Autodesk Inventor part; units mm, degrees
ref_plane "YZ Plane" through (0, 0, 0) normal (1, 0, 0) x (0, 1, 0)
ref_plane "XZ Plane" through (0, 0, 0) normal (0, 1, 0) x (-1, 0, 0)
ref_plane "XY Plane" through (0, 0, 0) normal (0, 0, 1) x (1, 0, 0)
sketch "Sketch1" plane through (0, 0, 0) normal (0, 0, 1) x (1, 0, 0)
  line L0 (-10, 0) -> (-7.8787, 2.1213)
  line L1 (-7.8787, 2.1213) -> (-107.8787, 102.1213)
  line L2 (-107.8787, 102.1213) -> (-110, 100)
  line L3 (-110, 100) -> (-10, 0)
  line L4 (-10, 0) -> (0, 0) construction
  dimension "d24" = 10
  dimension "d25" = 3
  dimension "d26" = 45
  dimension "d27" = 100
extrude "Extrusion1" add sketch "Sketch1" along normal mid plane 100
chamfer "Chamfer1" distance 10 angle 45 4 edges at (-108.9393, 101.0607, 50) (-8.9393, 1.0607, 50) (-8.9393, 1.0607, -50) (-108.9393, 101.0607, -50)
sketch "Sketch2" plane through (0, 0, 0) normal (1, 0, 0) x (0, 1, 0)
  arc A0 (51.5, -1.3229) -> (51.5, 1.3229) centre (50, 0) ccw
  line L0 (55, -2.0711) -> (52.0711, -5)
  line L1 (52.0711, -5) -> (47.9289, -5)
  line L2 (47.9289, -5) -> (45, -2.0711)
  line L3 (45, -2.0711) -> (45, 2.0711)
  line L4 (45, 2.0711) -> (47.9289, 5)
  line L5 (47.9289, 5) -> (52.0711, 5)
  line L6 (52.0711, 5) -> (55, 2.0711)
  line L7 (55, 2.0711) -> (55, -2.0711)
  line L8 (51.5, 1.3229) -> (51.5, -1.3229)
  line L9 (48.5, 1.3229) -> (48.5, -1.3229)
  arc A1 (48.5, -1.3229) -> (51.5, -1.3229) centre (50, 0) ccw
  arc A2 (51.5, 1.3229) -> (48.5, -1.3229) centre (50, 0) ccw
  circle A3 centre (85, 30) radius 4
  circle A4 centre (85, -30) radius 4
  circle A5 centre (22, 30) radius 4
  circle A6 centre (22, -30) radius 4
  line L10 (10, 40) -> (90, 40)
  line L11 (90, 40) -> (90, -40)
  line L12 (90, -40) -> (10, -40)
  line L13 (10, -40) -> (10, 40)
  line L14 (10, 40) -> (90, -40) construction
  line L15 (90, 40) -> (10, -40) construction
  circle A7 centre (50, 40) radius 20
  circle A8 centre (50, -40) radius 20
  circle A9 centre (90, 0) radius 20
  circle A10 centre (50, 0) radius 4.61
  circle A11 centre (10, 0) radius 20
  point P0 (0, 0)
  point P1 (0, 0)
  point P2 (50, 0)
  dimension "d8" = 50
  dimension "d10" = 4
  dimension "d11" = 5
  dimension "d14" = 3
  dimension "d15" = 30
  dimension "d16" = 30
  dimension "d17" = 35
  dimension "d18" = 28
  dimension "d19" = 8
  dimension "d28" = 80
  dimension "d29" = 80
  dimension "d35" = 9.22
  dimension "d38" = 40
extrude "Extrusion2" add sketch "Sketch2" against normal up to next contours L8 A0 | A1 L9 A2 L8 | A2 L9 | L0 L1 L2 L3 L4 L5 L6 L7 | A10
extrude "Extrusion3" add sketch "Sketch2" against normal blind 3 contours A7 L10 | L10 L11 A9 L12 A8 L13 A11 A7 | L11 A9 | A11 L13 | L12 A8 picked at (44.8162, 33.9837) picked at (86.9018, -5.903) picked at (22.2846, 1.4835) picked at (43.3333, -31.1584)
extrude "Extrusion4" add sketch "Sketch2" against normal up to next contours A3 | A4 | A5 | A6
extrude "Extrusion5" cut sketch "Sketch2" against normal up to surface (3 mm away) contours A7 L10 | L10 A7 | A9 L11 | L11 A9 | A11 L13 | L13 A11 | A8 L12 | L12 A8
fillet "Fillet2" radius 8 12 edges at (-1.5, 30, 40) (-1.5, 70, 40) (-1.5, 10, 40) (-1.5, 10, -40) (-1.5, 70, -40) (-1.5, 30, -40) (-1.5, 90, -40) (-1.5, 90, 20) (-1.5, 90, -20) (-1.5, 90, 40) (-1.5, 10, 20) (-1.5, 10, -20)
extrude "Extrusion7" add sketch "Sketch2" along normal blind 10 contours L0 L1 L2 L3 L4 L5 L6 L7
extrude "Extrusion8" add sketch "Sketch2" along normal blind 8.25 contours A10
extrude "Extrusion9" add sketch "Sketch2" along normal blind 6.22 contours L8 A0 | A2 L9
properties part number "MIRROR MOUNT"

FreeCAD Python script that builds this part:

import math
import FreeCAD as App
import Part
import Sketcher

V = App.Vector
Q = App.Units.Quantity


def edges_at(feature, points):
    """Names of the edges that pass closest to the given points."""
    edges = feature.Shape.Edges
    near = lambda p: min(range(len(edges)), key=lambda i: edges[i].distToShape(Part.Vertex(*p))[0])
    return sorted({f"Edge{near(p) + 1}" for p in points})

doc = App.newDocument("Part")
params = doc.addObject("Spreadsheet::Sheet", "Params")
for row, (alias, value) in enumerate([
    ("sketch1_length", "3 mm"),
    ("pad1_length", "100 mm"),
    ("chamfer_size", "10 mm"),
    ("sketch3_diameter", "8 mm"),
    ("sketch3_width", "80 mm"),
    ("pad3_length", "3 mm"),
    ("sketch4_diameter", "8 mm"),
    ("sketch5_diameter", "40 mm"),
    ("pocket1_length", "3 mm"),
    ("fillet_radius", "8 mm"),
    ("sketch6_diameter", "9.22 mm"),
    ("pad5_length", "10 mm"),
    ("sketch7_diameter", "4 mm"),
    ("sketch7_diameter2", "9.22 mm"),
    ("pad6_length", "8.25 mm"),
    ("sketch8_radius", "2 mm"),
    ("pad7_length", "6.22 mm"),
], start=1):
    params.set(f"A{row}", alias)
    params.set(f"B{row}", "=" + value)
    params.setAlias(f"B{row}", alias)

body = doc.addObject("PartDesign::Body", "Body")

sketch1 = body.newObject("Sketcher::SketchObject", "Sketch")
sketch1.AttachmentSupport = (doc.getObject("XY_Plane"), [""])
sketch1.MapMode = "FlatFace"
sketch1.addGeometry([
    Part.LineSegment(V(-110, 100, 0), V(-10, 0, 0)),
    Part.LineSegment(V(-10, 0, 0), V(-7.8787, 2.1213, 0)),
    Part.LineSegment(V(-7.8787, 2.1213, 0), V(-107.8787, 102.1213, 0)),
    Part.LineSegment(V(-107.8787, 102.1213, 0), V(-110, 100, 0)),
], False)
sketch1.addConstraint([
    Sketcher.Constraint("Coincident", 0, 2, 1, 1),
    Sketcher.Constraint("Coincident", 1, 2, 2, 1),
    Sketcher.Constraint("Coincident", 2, 2, 3, 1),
    Sketcher.Constraint("Coincident", 3, 2, 0, 1),
    Sketcher.Constraint("PointOnObject", 0, 2, -1),
    Sketcher.Constraint("Perpendicular", 0, 1),
    Sketcher.Constraint("Perpendicular", 1, 2),
    Sketcher.Constraint("Perpendicular", 2, 3),
    Sketcher.Constraint("Angle", 0, Q("-45 deg")),
    Sketcher.Constraint("Distance", 1, 3.0),
    Sketcher.Constraint("DistanceX", 0, 2, -1, 1, 10.0),
    Sketcher.Constraint("DistanceY", -1, 1, 3, 2, 100.0),
])
sketch1.setExpression("Constraints[9]", "Params.sketch1_length")
pad1 = body.newObject("PartDesign::Pad", "Pad")
pad1.Profile = sketch1
pad1.setExpression("Length", "Params.pad1_length")
pad1.Midplane = True
doc.recompute()

chamfer = body.newObject("PartDesign::Chamfer", "Chamfer")
chamfer.Base = (pad1, edges_at(pad1, [
    (-108.939, 101.061, 50),
    (-8.939, 1.061, 50),
    (-8.939, 1.061, -50),
    (-108.939, 101.061, -50),
]))
chamfer.setExpression("Size", "Params.chamfer_size")

sketch2 = body.newObject("Sketcher::SketchObject", "Sketch001")
sketch2.AttachmentSupport = (doc.getObject("YZ_Plane"), [""])
sketch2.MapMode = "FlatFace"
sketch2.addGeometry([
    Part.LineSegment(V(52.0711, -5, 0), V(55, -2.0711, 0)),
    Part.LineSegment(V(55, -2.0711, 0), V(55, 2.0711, 0)),
    Part.LineSegment(V(55, 2.0711, 0), V(52.0711, 5, 0)),
    Part.LineSegment(V(52.0711, 5, 0), V(47.9289, 5, 0)),
    Part.LineSegment(V(47.9289, 5, 0), V(45, 2.0711, 0)),
    Part.LineSegment(V(45, 2.0711, 0), V(45, -2.0711, 0)),
    Part.LineSegment(V(45, -2.0711, 0), V(47.9289, -5, 0)),
    Part.LineSegment(V(47.9289, -5, 0), V(52.0711, -5, 0)),
], False)
sketch2.addConstraint([
    Sketcher.Constraint("Coincident", 0, 2, 1, 1),
    Sketcher.Constraint("Coincident", 1, 2, 2, 1),
    Sketcher.Constraint("Coincident", 2, 2, 3, 1),
    Sketcher.Constraint("Coincident", 3, 2, 4, 1),
    Sketcher.Constraint("Coincident", 4, 2, 5, 1),
    Sketcher.Constraint("Coincident", 5, 2, 6, 1),
    Sketcher.Constraint("Coincident", 6, 2, 7, 1),
    Sketcher.Constraint("Coincident", 7, 2, 0, 1),
    Sketcher.Constraint("Vertical", 1),
    Sketcher.Constraint("Horizontal", 3),
    Sketcher.Constraint("Vertical", 5),
    Sketcher.Constraint("Horizontal", 7),
    Sketcher.Constraint("Symmetric", 3, 2, 6, 2, -1),
    Sketcher.Constraint("Perpendicular", 0, 2),
    Sketcher.Constraint("Perpendicular", 2, 4),
    Sketcher.Constraint("Perpendicular", 4, 6),
    Sketcher.Constraint("Horizontal", 1, 2, 4, 2),
    Sketcher.Constraint("Horizontal", 0, 2, 5, 2),
    Sketcher.Constraint("Vertical", 2, 2, 7, 2),
    Sketcher.Constraint("Equal", 7, 1),
    Sketcher.Constraint("DistanceY", -1, 1, 2, 2, 5.0),
    Sketcher.Constraint("DistanceX", -1, 1, 0, 2, 55.0),
    Sketcher.Constraint("Distance", 0, 4.142),
])
pad2 = body.newObject("PartDesign::Pad", "Pad001")
pad2.Profile = sketch2
pad2.Type = "UpToFirst"
pad2.Reversed = True

sketch3 = body.newObject("Sketcher::SketchObject", "Sketch002")
sketch3.AttachmentSupport = (doc.getObject("YZ_Plane"), [""])
sketch3.MapMode = "FlatFace"
sketch3.addGeometry([
    Part.LineSegment(V(10, 40, 0), V(10, -40, 0)),
    Part.LineSegment(V(10, -40, 0), V(90, -40, 0)),
    Part.LineSegment(V(90, -40, 0), V(90, 40, 0)),
    Part.LineSegment(V(90, 40, 0), V(10, 40, 0)),
    Part.Circle(V(85, 30, 0), V(0, 0, 1), 4),
    Part.Circle(V(22, -30, 0), V(0, 0, 1), 4),
    Part.Circle(V(85, -30, 0), V(0, 0, 1), 4),
    Part.Circle(V(22, 30, 0), V(0, 0, 1), 4),
    Part.LineSegment(V(55, 2.0711, 0), V(55, -2.0711, 0)),
    Part.LineSegment(V(55, -2.0711, 0), V(52.0711, -5, 0)),
    Part.LineSegment(V(52.0711, -5, 0), V(47.9289, -5, 0)),
    Part.LineSegment(V(47.9289, -5, 0), V(45, -2.0711, 0)),
    Part.LineSegment(V(45, -2.0711, 0), V(45, 2.0711, 0)),
    Part.LineSegment(V(45, 2.0711, 0), V(47.9289, 5, 0)),
    Part.LineSegment(V(47.9289, 5, 0), V(52.0711, 5, 0)),
    Part.LineSegment(V(52.0711, 5, 0), V(55, 2.0711, 0)),
], False)
sketch3.addConstraint([
    Sketcher.Constraint("Coincident", 0, 2, 1, 1),
    Sketcher.Constraint("Coincident", 1, 2, 2, 1),
    Sketcher.Constraint("Coincident", 2, 2, 3, 1),
    Sketcher.Constraint("Coincident", 3, 2, 0, 1),
    Sketcher.Constraint("Coincident", 8, 2, 9, 1),
    Sketcher.Constraint("Coincident", 9, 2, 10, 1),
    Sketcher.Constraint("Coincident", 10, 2, 11, 1),
    Sketcher.Constraint("Coincident", 11, 2, 12, 1),
    Sketcher.Constraint("Coincident", 12, 2, 13, 1),
    Sketcher.Constraint("Coincident", 13, 2, 14, 1),
    Sketcher.Constraint("Coincident", 14, 2, 15, 1),
    Sketcher.Constraint("Coincident", 15, 2, 8, 1),
    Sketcher.Constraint("Vertical", 0),
    Sketcher.Constraint("Horizontal", 1),
    Sketcher.Constraint("Vertical", 2),
    Sketcher.Constraint("Horizontal", 3),
    Sketcher.Constraint("Vertical", 8),
    Sketcher.Constraint("Horizontal", 10),
    Sketcher.Constraint("Vertical", 12),
    Sketcher.Constraint("Horizontal", 14),
    Sketcher.Constraint("Equal", 4, 5),
    Sketcher.Constraint("Equal", 5, 6),
    Sketcher.Constraint("Equal", 6, 7),
    Sketcher.Constraint("Symmetric", 4, 3, 6, 3, -1),
    Sketcher.Constraint("Symmetric", 5, 3, 7, 3, -1),
    Sketcher.Constraint("Symmetric", 10, 2, 13, 2, -1),
    Sketcher.Constraint("Perpendicular", 9, 11),
    Sketcher.Constraint("Perpendicular", 11, 13),
    Sketcher.Constraint("Perpendicular", 13, 15),
    Sketcher.Constraint("Horizontal", 5, 3, 6, 3),
    Sketcher.Constraint("Horizontal", 8, 2, 11, 2),
    Sketcher.Constraint("Horizontal", 12, 2, 15, 2),
    Sketcher.Constraint("Vertical", 9, 2, 14, 2),
    Sketcher.Constraint("Equal", 3, 0),
    Sketcher.Constraint("Equal", 14, 8),
    Sketcher.Constraint("Diameter", 4, 8.0),
    Sketcher.Constraint("DistanceX", 1, 1, 1, 2, 80.0),
    Sketcher.Constraint("DistanceY", -1, 1, 4, 3, 30.0),
    Sketcher.Constraint("DistanceY", 0, 2, -1, 1, 40.0),
    Sketcher.Constraint("DistanceY", 9, 2, -1, 1, 5.0),
    Sketcher.Constraint("DistanceX", 6, 3, 1, 2, 5.0),
    Sketcher.Constraint("DistanceX", 8, 2, 6, 3, 30.0),
    Sketcher.Constraint("DistanceX", -1, 1, 4, 3, 85.0),
    Sketcher.Constraint("DistanceX", -1, 1, 5, 3, 22.0),
    Sketcher.Constraint("Distance", 9, 4.142),
])
sketch3.setExpression("Constraints[35]", "Params.sketch3_diameter")
sketch3.setExpression("Constraints[36]", "Params.sketch3_width")
pad3 = body.newObject("PartDesign::Pad", "Pad002")
pad3.Profile = sketch3
pad3.setExpression("Length", "Params.pad3_length")
pad3.Reversed = True

sketch4 = body.newObject("Sketcher::SketchObject", "Sketch003")
sketch4.AttachmentSupport = (doc.getObject("YZ_Plane"), [""])
sketch4.MapMode = "FlatFace"
sketch4.addGeometry([
    Part.Circle(V(85, 30, 0), V(0, 0, 1), 4),
    Part.Circle(V(85, -30, 0), V(0, 0, 1), 4),
    Part.Circle(V(22, 30, 0), V(0, 0, 1), 4),
    Part.Circle(V(22, -30, 0), V(0, 0, 1), 4),
], False)
sketch4.addConstraint([
    Sketcher.Constraint("Equal", 0, 1),
    Sketcher.Constraint("Equal", 1, 2),
    Sketcher.Constraint("Equal", 2, 3),
    Sketcher.Constraint("Symmetric", 0, 3, 1, 3, -1),
    Sketcher.Constraint("Symmetric", 2, 3, 3, 3, -1),
    Sketcher.Constraint("Horizontal", 0, 3, 2, 3),
    Sketcher.Constraint("Diameter", 0, 8.0),
    Sketcher.Constraint("DistanceY", -1, 1, 0, 3, 30.0),
    Sketcher.Constraint("DistanceX", -1, 1, 0, 3, 85.0),
    Sketcher.Constraint("DistanceX", -1, 1, 2, 3, 22.0),
])
sketch4.setExpression("Constraints[6]", "Params.sketch4_diameter")
pad4 = body.newObject("PartDesign::Pad", "Pad003")
pad4.Profile = sketch4
pad4.Type = "UpToFirst"
pad4.Reversed = True

sketch5 = body.newObject("Sketcher::SketchObject", "Sketch004")
sketch5.AttachmentSupport = (doc.getObject("YZ_Plane"), [""])
sketch5.MapMode = "FlatFace"
sketch5.addGeometry([
    Part.Circle(V(50, 40, 0), V(0, 0, 1), 20),
    Part.Circle(V(90, 0, 0), V(0, 0, 1), 20),
    Part.Circle(V(10, 0, 0), V(0, 0, 1), 20),
    Part.Circle(V(50, -40, 0), V(0, 0, 1), 20),
], False)
sketch5.addConstraint([
    Sketcher.Constraint("Equal", 0, 1),
    Sketcher.Constraint("Equal", 1, 2),
    Sketcher.Constraint("Equal", 2, 3),
    Sketcher.Constraint("Symmetric", 0, 3, 3, 3, -1),
    Sketcher.Constraint("PointOnObject", 1, 3, -1),
    Sketcher.Constraint("PointOnObject", 2, 3, -1),
    Sketcher.Constraint("Diameter", 0, 40.0),
    Sketcher.Constraint("DistanceX", -1, 1, 0, 3, 50.0),
    Sketcher.Constraint("DistanceY", -1, 1, 0, 3, 40.0),
    Sketcher.Constraint("DistanceX", 0, 3, 1, 3, 40.0),
    Sketcher.Constraint("DistanceX", 2, 3, 0, 3, 40.0),
])
sketch5.setExpression("Constraints[6]", "Params.sketch5_diameter")
pocket1 = body.newObject("PartDesign::Pocket", "Pocket")
pocket1.Profile = sketch5
pocket1.setExpression("Length", "Params.pocket1_length")
doc.recompute()

fillet = body.newObject("PartDesign::Fillet", "Fillet")
fillet.Base = (pocket1, edges_at(pocket1, [
    (-1.5, 30, 40),
    (-1.5, 70, 40),
    (-1.5, 10, 40),
    (-1.5, 10, -40),
    (-1.5, 70, -40),
    (-1.5, 30, -40),
    (-1.5, 90, -40),
    (-1.5, 90, 20),
    (-1.5, 90, -20),
    (-1.5, 90, 40),
    (-1.5, 10, 20),
    (-1.5, 10, -20),
]))
fillet.setExpression("Radius", "Params.fillet_radius")

sketch6 = body.newObject("Sketcher::SketchObject", "Sketch005")
sketch6.AttachmentSupport = (doc.getObject("YZ_Plane"), [""])
sketch6.MapMode = "FlatFace"
sketch6.addGeometry([
    Part.LineSegment(V(52.0711, -5, 0), V(55, -2.0711, 0)),
    Part.LineSegment(V(55, -2.0711, 0), V(55, 2.0711, 0)),
    Part.LineSegment(V(55, 2.0711, 0), V(52.0711, 5, 0)),
    Part.LineSegment(V(52.0711, 5, 0), V(47.9289, 5, 0)),
    Part.LineSegment(V(47.9289, 5, 0), V(45, 2.0711, 0)),
    Part.LineSegment(V(45, 2.0711, 0), V(45, -2.0711, 0)),
    Part.LineSegment(V(45, -2.0711, 0), V(47.9289, -5, 0)),
    Part.LineSegment(V(47.9289, -5, 0), V(52.0711, -5, 0)),
    Part.Circle(V(50, 0, 0), V(0, 0, 1), 4.61),
], False)
sketch6.addConstraint([
    Sketcher.Constraint("Coincident", 0, 2, 1, 1),
    Sketcher.Constraint("Coincident", 1, 2, 2, 1),
    Sketcher.Constraint("Coincident", 2, 2, 3, 1),
    Sketcher.Constraint("Coincident", 3, 2, 4, 1),
    Sketcher.Constraint("Coincident", 4, 2, 5, 1),
    Sketcher.Constraint("Coincident", 5, 2, 6, 1),
    Sketcher.Constraint("Coincident", 6, 2, 7, 1),
    Sketcher.Constraint("Coincident", 7, 2, 0, 1),
    Sketcher.Constraint("Vertical", 1),
    Sketcher.Constraint("Horizontal", 3),
    Sketcher.Constraint("Vertical", 5),
    Sketcher.Constraint("Horizontal", 7),
    Sketcher.Constraint("Symmetric", 3, 2, 6, 2, -1),
    Sketcher.Constraint("PointOnObject", 8, 3, -1),
    Sketcher.Constraint("Perpendicular", 0, 2),
    Sketcher.Constraint("Perpendicular", 2, 4),
    Sketcher.Constraint("Perpendicular", 4, 6),
    Sketcher.Constraint("Horizontal", 1, 2, 4, 2),
    Sketcher.Constraint("Horizontal", 0, 2, 5, 2),
    Sketcher.Constraint("Vertical", 2, 2, 7, 2),
    Sketcher.Constraint("Equal", 7, 1),
    Sketcher.Constraint("Diameter", 8, 9.22),
    Sketcher.Constraint("DistanceX", -1, 1, 8, 3, 50.0),
    Sketcher.Constraint("DistanceY", -1, 1, 2, 2, 5.0),
    Sketcher.Constraint("DistanceX", 8, 3, 0, 2, 5.0),
    Sketcher.Constraint("Distance", 0, 4.142),
])
sketch6.setExpression("Constraints[21]", "Params.sketch6_diameter")
pad5 = body.newObject("PartDesign::Pad", "Pad004")
pad5.Profile = sketch6
pad5.setExpression("Length", "Params.pad5_length")

sketch7 = body.newObject("Sketcher::SketchObject", "Sketch006")
sketch7.AttachmentSupport = (doc.getObject("YZ_Plane"), [""])
sketch7.MapMode = "FlatFace"
sketch7.addGeometry([
    Part.Circle(V(50, 0, 0), V(0, 0, 1), 4.61),
    Part.Circle(V(50, 0, 0), V(0, 0, 1), 2.000016),
], False)
sketch7.addConstraint([
    Sketcher.Constraint("Coincident", 1, 3, 0, 3),
    Sketcher.Constraint("PointOnObject", 0, 3, -1),
    Sketcher.Constraint("Diameter", 1, 4.0),
    Sketcher.Constraint("Diameter", 0, 9.22),
    Sketcher.Constraint("DistanceX", -1, 1, 0, 3, 50.0),
])
sketch7.setExpression("Constraints[2]", "Params.sketch7_diameter")
sketch7.setExpression("Constraints[3]", "Params.sketch7_diameter2")
pad6 = body.newObject("PartDesign::Pad", "Pad005")
pad6.Profile = sketch7
pad6.setExpression("Length", "Params.pad6_length")

sketch8 = body.newObject("Sketcher::SketchObject", "Sketch007")
sketch8.AttachmentSupport = (doc.getObject("YZ_Plane"), [""])
sketch8.MapMode = "FlatFace"
sketch8.addGeometry([
    Part.LineSegment(V(51.5, 1.3229, 0), V(51.5, -1.3229, 0)),
    Part.ArcOfCircle(Part.Circle(V(50, 0, 0), V(0, 0, 1), 2.000016), math.radians(-41.410145), math.radians(41.410145)),
    Part.ArcOfCircle(Part.Circle(V(50, 0, 0), V(0, 0, 1), 2.000016), math.radians(138.589855), math.radians(221.410145)),
    Part.LineSegment(V(48.5, -1.3229, 0), V(48.5, 1.3229, 0)),
], False)
sketch8.addConstraint([
    Sketcher.Constraint("Coincident", 0, 1, 1, 2),
    Sketcher.Constraint("Coincident", 1, 1, 0, 2),
    Sketcher.Constraint("Coincident", 2, 1, 3, 2),
    Sketcher.Constraint("Coincident", 3, 1, 2, 2),
    Sketcher.Constraint("Vertical", 0),
    Sketcher.Constraint("Vertical", 3),
    Sketcher.Constraint("Coincident", 2, 3, 1, 3),
    Sketcher.Constraint("Equal", 1, 2),
    Sketcher.Constraint("PointOnObject", 1, 3, -1),
    Sketcher.Constraint("Horizontal", 0, 1, 2, 1),
    Sketcher.Constraint("Radius", 1, 2.0),
    Sketcher.Constraint("DistanceX", -1, 1, 1, 3, 50.0),
    Sketcher.Constraint("DistanceX", 2, 1, 0, 1, 3.0),
])
sketch8.setExpression("Constraints[10]", "Params.sketch8_radius")
pad7 = body.newObject("PartDesign::Pad", "Pad006")
pad7.Profile = sketch8
pad7.setExpression("Length", "Params.pad7_length")

doc.recompute()
